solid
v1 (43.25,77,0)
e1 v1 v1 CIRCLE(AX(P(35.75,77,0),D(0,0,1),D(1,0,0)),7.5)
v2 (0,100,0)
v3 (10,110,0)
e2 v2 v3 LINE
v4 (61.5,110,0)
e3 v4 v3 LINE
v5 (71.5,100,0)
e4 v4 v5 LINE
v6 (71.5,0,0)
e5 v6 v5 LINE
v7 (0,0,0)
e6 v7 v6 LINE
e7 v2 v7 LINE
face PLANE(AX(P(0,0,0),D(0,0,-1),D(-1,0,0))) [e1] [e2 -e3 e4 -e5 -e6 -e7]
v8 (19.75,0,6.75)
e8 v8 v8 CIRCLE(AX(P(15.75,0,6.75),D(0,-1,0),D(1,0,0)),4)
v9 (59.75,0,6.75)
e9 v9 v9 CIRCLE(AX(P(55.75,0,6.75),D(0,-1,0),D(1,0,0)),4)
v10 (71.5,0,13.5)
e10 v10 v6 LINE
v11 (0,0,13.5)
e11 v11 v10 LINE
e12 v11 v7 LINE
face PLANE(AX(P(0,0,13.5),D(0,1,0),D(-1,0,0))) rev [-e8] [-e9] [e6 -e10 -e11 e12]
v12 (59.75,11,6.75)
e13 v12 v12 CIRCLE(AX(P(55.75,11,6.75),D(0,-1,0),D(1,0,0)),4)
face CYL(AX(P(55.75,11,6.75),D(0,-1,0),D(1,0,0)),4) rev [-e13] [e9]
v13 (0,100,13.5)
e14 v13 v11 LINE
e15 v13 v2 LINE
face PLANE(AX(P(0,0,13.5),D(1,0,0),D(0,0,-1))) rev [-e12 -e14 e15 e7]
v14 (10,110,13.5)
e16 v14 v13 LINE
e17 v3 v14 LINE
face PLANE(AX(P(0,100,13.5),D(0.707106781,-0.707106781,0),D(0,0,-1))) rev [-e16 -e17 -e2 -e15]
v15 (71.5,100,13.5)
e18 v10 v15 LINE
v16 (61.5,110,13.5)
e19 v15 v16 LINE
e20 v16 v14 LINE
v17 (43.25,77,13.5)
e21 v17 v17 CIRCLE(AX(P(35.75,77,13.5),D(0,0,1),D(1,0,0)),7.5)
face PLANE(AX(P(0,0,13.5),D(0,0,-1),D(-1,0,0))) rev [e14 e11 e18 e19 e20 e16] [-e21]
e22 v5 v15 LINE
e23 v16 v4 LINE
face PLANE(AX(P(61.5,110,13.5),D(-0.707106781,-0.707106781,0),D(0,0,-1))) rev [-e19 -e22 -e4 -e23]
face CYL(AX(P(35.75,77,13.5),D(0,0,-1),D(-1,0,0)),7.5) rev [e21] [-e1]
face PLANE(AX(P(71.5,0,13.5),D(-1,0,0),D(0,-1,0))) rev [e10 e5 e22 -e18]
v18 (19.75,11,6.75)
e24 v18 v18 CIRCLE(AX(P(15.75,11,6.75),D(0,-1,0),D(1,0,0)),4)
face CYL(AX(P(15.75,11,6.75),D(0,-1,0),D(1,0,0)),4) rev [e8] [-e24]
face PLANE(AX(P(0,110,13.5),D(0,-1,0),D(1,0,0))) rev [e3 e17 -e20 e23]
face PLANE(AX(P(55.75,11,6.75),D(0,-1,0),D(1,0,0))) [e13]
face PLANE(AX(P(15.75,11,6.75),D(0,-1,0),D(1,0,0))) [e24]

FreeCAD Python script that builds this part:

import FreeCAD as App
import Part
import Sketcher
from FreeCAD import Vector
Q = App.Units.Quantity


def edges_at(feature, points):
    """Names of the edges that pass closest to the given points."""
    edges = feature.Shape.Edges
    near = lambda p: min(range(len(edges)), key=lambda i: edges[i].distToShape(Part.Vertex(*p))[0])
    return sorted({f"Edge{near(p) + 1}" for p in points})

doc = App.newDocument("Part")
body = doc.addObject("PartDesign::Body", "Body")

# Sketch on XY plane
sketch1 = body.newObject("Sketcher::SketchObject", "Sketch")
sketch1.AttachmentSupport = (doc.getObject("XY_Plane"), [""])
sketch1.MapMode = "FlatFace"
sketch1.addGeometry([
    Part.LineSegment(Vector(0, 110, 0), Vector(0, 0, 0)),  # 0
    Part.LineSegment(Vector(0, 0, 0), Vector(72, 0, 0)),  # 1
    Part.LineSegment(Vector(72, 0, 0), Vector(72, 110, 0)),  # 2
    Part.LineSegment(Vector(72, 110, 0), Vector(0, 110, 0)),  # 3
    Part.Circle(Vector(36, 77, 0), Vector(0, 0, 1), 8),  # 4
], False)
sketch1.addConstraint([
    Sketcher.Constraint("Coincident", 0, 2, 1, 1),
    Sketcher.Constraint("Coincident", 1, 2, 2, 1),
    Sketcher.Constraint("Coincident", 2, 2, 3, 1),
    Sketcher.Constraint("Coincident", 3, 2, 0, 1),
    Sketcher.Constraint("Vertical", 0),
    Sketcher.Constraint("Horizontal", 1),
    Sketcher.Constraint("Vertical", 2),
    Sketcher.Constraint("Horizontal", 3),
    Sketcher.Constraint("Coincident", 0, 2, -1, 1),
    Sketcher.Constraint("Diameter", 4, Q("15 mm")),
    Sketcher.Constraint("DistanceY", 0, 2, 0, 1, Q("110 mm")),
    Sketcher.Constraint("DistanceX", 1, 1, 1, 2, Q("71.5 mm")),
    Sketcher.Constraint("DistanceY", -1, 1, 4, 3, Q("77 mm")),
    Sketcher.Constraint("DistanceX", -1, 1, 4, 3, Q("35.75 mm")),
])
pad1 = body.newObject("PartDesign::Pad", "Pad")
pad1.Profile = sketch1
pad1.Length = 13.5
doc.recompute()

chamfer = body.newObject("PartDesign::Chamfer", "Chamfer")
chamfer.Base = (pad1, edges_at(pad1, [(0, 110, 6.75), (71.5, 110, 6.75)]))
chamfer.Size = 10

# Sketch on XZ plane
sketch2 = body.newObject("Sketcher::SketchObject", "Sketch001")
sketch2.AttachmentSupport = (doc.getObject("XZ_Plane"), [""])
sketch2.MapMode = "FlatFace"
sketch2.addGeometry([
    Part.Circle(Vector(15.8, 6.8, 0), Vector(0, 0, 1), 4),
    Part.Circle(Vector(55.8, 6.8, 0), Vector(0, 0, 1), 4),
], False)
sketch2.addConstraint([
    Sketcher.Constraint("Equal", 0, 1),
    Sketcher.Constraint("Horizontal", 0, 3, 1, 3),
    Sketcher.Constraint("Diameter", 0, Q("8 mm")),
    Sketcher.Constraint("DistanceX", 0, 3, 1, 3, Q("40 mm")),
    Sketcher.Constraint("DistanceX", -1, 1, 0, 3, Q("15.75 mm")),
    Sketcher.Constraint("DistanceY", -1, 1, 0, 3, Q("6.75 mm")),
])
pocket1 = body.newObject("PartDesign::Pocket", "Pocket")
pocket1.Profile = sketch2
pocket1.Length = 11

doc.recompute()
